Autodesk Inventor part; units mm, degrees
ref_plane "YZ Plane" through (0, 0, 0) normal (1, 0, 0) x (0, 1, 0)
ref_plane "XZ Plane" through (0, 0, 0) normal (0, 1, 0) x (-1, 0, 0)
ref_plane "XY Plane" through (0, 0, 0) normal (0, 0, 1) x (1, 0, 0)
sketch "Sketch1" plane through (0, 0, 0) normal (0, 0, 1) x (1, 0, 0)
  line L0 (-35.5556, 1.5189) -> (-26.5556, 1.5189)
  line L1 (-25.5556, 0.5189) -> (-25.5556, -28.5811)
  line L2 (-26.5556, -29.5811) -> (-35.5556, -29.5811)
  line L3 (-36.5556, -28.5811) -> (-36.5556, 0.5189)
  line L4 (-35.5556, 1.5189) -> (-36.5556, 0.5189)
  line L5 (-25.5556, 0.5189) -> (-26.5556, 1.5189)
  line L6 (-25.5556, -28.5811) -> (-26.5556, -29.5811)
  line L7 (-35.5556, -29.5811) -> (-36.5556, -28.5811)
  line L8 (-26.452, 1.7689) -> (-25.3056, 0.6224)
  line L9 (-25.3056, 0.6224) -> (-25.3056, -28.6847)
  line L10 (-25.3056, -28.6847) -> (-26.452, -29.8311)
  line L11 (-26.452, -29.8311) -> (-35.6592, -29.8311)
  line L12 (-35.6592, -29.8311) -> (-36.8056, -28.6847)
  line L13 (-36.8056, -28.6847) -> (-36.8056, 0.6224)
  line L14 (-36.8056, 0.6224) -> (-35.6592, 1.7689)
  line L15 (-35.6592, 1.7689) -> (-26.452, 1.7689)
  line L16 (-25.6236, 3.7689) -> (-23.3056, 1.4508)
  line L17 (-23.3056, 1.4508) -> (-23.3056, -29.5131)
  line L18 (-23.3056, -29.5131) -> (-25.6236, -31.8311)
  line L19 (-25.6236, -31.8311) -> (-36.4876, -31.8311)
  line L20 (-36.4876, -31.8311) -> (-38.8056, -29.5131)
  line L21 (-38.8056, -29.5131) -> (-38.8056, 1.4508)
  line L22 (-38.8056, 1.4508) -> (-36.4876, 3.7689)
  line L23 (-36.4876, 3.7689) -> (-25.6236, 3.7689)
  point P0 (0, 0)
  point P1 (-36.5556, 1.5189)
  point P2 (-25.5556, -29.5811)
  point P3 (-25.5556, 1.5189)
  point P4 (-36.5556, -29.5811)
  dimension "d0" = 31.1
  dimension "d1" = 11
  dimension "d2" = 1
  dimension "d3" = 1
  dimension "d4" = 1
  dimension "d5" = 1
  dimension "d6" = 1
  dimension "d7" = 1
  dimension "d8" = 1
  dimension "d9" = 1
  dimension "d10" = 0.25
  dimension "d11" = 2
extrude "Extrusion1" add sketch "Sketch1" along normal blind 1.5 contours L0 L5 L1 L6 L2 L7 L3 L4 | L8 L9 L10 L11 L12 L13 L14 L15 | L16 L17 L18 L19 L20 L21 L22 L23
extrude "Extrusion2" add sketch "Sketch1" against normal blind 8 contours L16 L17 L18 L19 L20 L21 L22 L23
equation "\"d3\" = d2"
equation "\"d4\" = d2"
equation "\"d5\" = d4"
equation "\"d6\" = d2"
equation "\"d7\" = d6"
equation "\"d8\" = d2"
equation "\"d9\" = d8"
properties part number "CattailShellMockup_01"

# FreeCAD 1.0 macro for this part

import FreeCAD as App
import Part
import Sketcher
from FreeCAD import Vector

doc = App.newDocument("Part")
body = doc.addObject("PartDesign::Body", "Body")

# Sketch on XY plane
sketch1 = body.newObject("Sketcher::SketchObject", "Sketch")
sketch1.AttachmentSupport = (doc.getObject("XY_Plane"), [""])
sketch1.MapMode = "FlatFace"
sketch1.addGeometry(Part.LineSegment(Vector(-23.3, 1.5, 0), Vector(-25.6, 3.8, 0)), False)
sketch1.addGeometry(Part.LineSegment(Vector(-25.6, 3.8, 0), Vector(-36.5, 3.8, 0)), False)
sketch1.addGeometry(Part.LineSegment(Vector(-36.5, 3.8, 0), Vector(-38.8, 1.5, 0)), False)
sketch1.addGeometry(Part.LineSegment(Vector(-38.8, 1.5, 0), Vector(-38.8, -29.5, 0)), False)
sketch1.addGeometry(Part.LineSegment(Vector(-38.8, -29.5, 0), Vector(-36.5, -31.8, 0)), False)
sketch1.addGeometry(Part.LineSegment(Vector(-36.5, -31.8, 0), Vector(-25.6, -31.8, 0)), False)
sketch1.addGeometry(Part.LineSegment(Vector(-25.6, -31.8, 0), Vector(-23.3, -29.5, 0)), False)
sketch1.addGeometry(Part.LineSegment(Vector(-23.3, -29.5, 0), Vector(-23.3, 1.5, 0)), False)
sketch1.addConstraint(Sketcher.Constraint("Coincident", 0, 2, 1, 1))
sketch1.addConstraint(Sketcher.Constraint("Coincident", 1, 2, 2, 1))
sketch1.addConstraint(Sketcher.Constraint("Coincident", 2, 2, 3, 1))
sketch1.addConstraint(Sketcher.Constraint("Coincident", 3, 2, 4, 1))
sketch1.addConstraint(Sketcher.Constraint("Coincident", 4, 2, 5, 1))
sketch1.addConstraint(Sketcher.Constraint("Coincident", 5, 2, 6, 1))
sketch1.addConstraint(Sketcher.Constraint("Coincident", 6, 2, 7, 1))
sketch1.addConstraint(Sketcher.Constraint("Coincident", 7, 2, 0, 1))
sketch1.addConstraint(Sketcher.Constraint("Horizontal", 1))
sketch1.addConstraint(Sketcher.Constraint("Vertical", 3))
sketch1.addConstraint(Sketcher.Constraint("Horizontal", 5))
sketch1.addConstraint(Sketcher.Constraint("Vertical", 7))
sketch1.addConstraint(Sketcher.Constraint("Perpendicular", 0, 2))
sketch1.addConstraint(Sketcher.Constraint("Perpendicular", 2, 4))
sketch1.addConstraint(Sketcher.Constraint("Perpendicular", 4, 6))
sketch1.addConstraint(Sketcher.Constraint("Horizontal", 3, 2, 6, 2))
sketch1.addConstraint(Sketcher.Constraint("Horizontal", 2, 2, 7, 2))
sketch1.addConstraint(Sketcher.Constraint("Vertical", 1, 2, 4, 2))
sketch1.addConstraint(Sketcher.Constraint("Vertical", 0, 2, 5, 2))
sketch1.addConstraint(Sketcher.Constraint("DistanceY", 4, 2, 1, 2, 35.6))
sketch1.addConstraint(Sketcher.Constraint("DistanceX", 3, 2, 6, 2, 15.5))
sketch1.addConstraint(Sketcher.Constraint("DistanceX", 1, 2, 1, 1, 10.864))
sketch1.addConstraint(Sketcher.Constraint("DistanceY", -1, 1, 0, 2, 3.769))
sketch1.addConstraint(Sketcher.Constraint("DistanceX", 0, 2, -1, 1, 25.6236))
pad1 = body.newObject("PartDesign::Pad", "Pad")
pad1.Profile = sketch1
pad1.Length = 1.5

# Sketch on XY plane
sketch2 = body.newObject("Sketcher::SketchObject", "Sketch001")
sketch2.AttachmentSupport = (doc.getObject("XY_Plane"), [""])
sketch2.MapMode = "FlatFace"
sketch2.addGeometry(Part.LineSegment(Vector(-23.3, 1.5, 0), Vector(-25.6, 3.8, 0)), False)
sketch2.addGeometry(Part.LineSegment(Vector(-25.6, 3.8, 0), Vector(-36.5, 3.8, 0)), False)
sketch2.addGeometry(Part.LineSegment(Vector(-36.5, 3.8, 0), Vector(-38.8, 1.5, 0)), False)
sketch2.addGeometry(Part.LineSegment(Vector(-38.8, 1.5, 0), Vector(-38.8, -29.5, 0)), False)
sketch2.addGeometry(Part.LineSegment(Vector(-38.8, -29.5, 0), Vector(-36.5, -31.8, 0)), False)
sketch2.addGeometry(Part.LineSegment(Vector(-36.5, -31.8, 0), Vector(-25.6, -31.8, 0)), False)
sketch2.addGeometry(Part.LineSegment(Vector(-25.6, -31.8, 0), Vector(-23.3, -29.5, 0)), False)
sketch2.addGeometry(Part.LineSegment(Vector(-23.3, -29.5, 0), Vector(-23.3, 1.5, 0)), False)
sketch2.addGeometry(Part.LineSegment(Vector(-35.7, 1.8, 0), Vector(-26.5, 1.8, 0)), False)
sketch2.addGeometry(Part.LineSegment(Vector(-26.5, 1.8, 0), Vector(-25.3, 0.6, 0)), False)
sketch2.addGeometry(Part.LineSegment(Vector(-25.3, 0.6, 0), Vector(-25.3, -28.7, 0)), False)
sketch2.addGeometry(Part.LineSegment(Vector(-25.3, -28.7, 0), Vector(-26.5, -29.8, 0)), False)
sketch2.addGeometry(Part.LineSegment(Vector(-26.5, -29.8, 0), Vector(-35.7, -29.8, 0)), False)
sketch2.addGeometry(Part.LineSegment(Vector(-35.7, -29.8, 0), Vector(-36.8, -28.7, 0)), False)
sketch2.addGeometry(Part.LineSegment(Vector(-36.8, -28.7, 0), Vector(-36.8, 0.6, 0)), False)
sketch2.addGeometry(Part.LineSegment(Vector(-36.8, 0.6, 0), Vector(-35.7, 1.8, 0)), False)
sketch2.addConstraint(Sketcher.Constraint("Coincident", 0, 2, 1, 1))
sketch2.addConstraint(Sketcher.Constraint("Coincident", 1, 2, 2, 1))
sketch2.addConstraint(Sketcher.Constraint("Coincident", 2, 2, 3, 1))
sketch2.addConstraint(Sketcher.Constraint("Coincident", 3, 2, 4, 1))
sketch2.addConstraint(Sketcher.Constraint("Coincident", 4, 2, 5, 1))
sketch2.addConstraint(Sketcher.Constraint("Coincident", 5, 2, 6, 1))
sketch2.addConstraint(Sketcher.Constraint("Coincident", 6, 2, 7, 1))
sketch2.addConstraint(Sketcher.Constraint("Coincident", 7, 2, 0, 1))
sketch2.addConstraint(Sketcher.Constraint("Coincident", 8, 2, 9, 1))
sketch2.addConstraint(Sketcher.Constraint("Coincident", 9, 2, 10, 1))
sketch2.addConstraint(Sketcher.Constraint("Coincident", 10, 2, 11, 1))
sketch2.addConstraint(Sketcher.Constraint("Coincident", 11, 2, 12, 1))
sketch2.addConstraint(Sketcher.Constraint("Coincident", 12, 2, 13, 1))
sketch2.addConstraint(Sketcher.Constraint("Coincident", 13, 2, 14, 1))
sketch2.addConstraint(Sketcher.Constraint("Coincident", 14, 2, 15, 1))
sketch2.addConstraint(Sketcher.Constraint("Coincident", 15, 2, 8, 1))
sketch2.addConstraint(Sketcher.Constraint("Horizontal", 1))
sketch2.addConstraint(Sketcher.Constraint("Vertical", 3))
sketch2.addConstraint(Sketcher.Constraint("Horizontal", 5))
sketch2.addConstraint(Sketcher.Constraint("Vertical", 7))
sketch2.addConstraint(Sketcher.Constraint("Horizontal", 8))
sketch2.addConstraint(Sketcher.Constraint("Vertical", 10))
sketch2.addConstraint(Sketcher.Constraint("Horizontal", 12))
sketch2.addConstraint(Sketcher.Constraint("Vertical", 14))
sketch2.addConstraint(Sketcher.Constraint("Perpendicular", 0, 2))
sketch2.addConstraint(Sketcher.Constraint("Perpendicular", 2, 4))
sketch2.addConstraint(Sketcher.Constraint("Perpendicular", 4, 6))
sketch2.addConstraint(Sketcher.Constraint("Perpendicular", 6, 9))
sketch2.addConstraint(Sketcher.Constraint("Perpendicular", 9, 11))
sketch2.addConstraint(Sketcher.Constraint("Perpendicular", 11, 13))
sketch2.addConstraint(Sketcher.Constraint("Perpendicular", 13, 15))
sketch2.addConstraint(Sketcher.Constraint("Horizontal", 3, 2, 6, 2))
sketch2.addConstraint(Sketcher.Constraint("Horizontal", 2, 2, 7, 2))
sketch2.addConstraint(Sketcher.Constraint("Horizontal", 10, 2, 13, 2))
sketch2.addConstraint(Sketcher.Constraint("Horizontal", 9, 2, 14, 2))
sketch2.addConstraint(Sketcher.Constraint("Vertical", 1, 2, 4, 2))
sketch2.addConstraint(Sketcher.Constraint("Vertical", 0, 2, 5, 2))
sketch2.addConstraint(Sketcher.Constraint("Vertical", 8, 2, 11, 2))
sketch2.addConstraint(Sketcher.Constraint("DistanceY", 8, 2, 0, 2, 2.0))
sketch2.addConstraint(Sketcher.Constraint("DistanceX", 9, 2, 7, 2, 2.0))
sketch2.addConstraint(Sketcher.Constraint("DistanceY", 5, 2, 11, 2, 2.0))
sketch2.addConstraint(Sketcher.Constraint("DistanceX", 3, 2, 13, 2, 2.0))
sketch2.addConstraint(Sketcher.Constraint("DistanceY", 4, 2, 1, 2, 35.6))
sketch2.addConstraint(Sketcher.Constraint("DistanceX", 3, 2, 6, 2, 15.5))
sketch2.addConstraint(Sketcher.Constraint("DistanceX", 1, 2, 1, 1, 10.864))
sketch2.addConstraint(Sketcher.Constraint("DistanceY", 10, 2, 10, 1, 29.307))
sketch2.addConstraint(Sketcher.Constraint("DistanceY", -1, 1, 0, 2, 3.769))
sketch2.addConstraint(Sketcher.Constraint("DistanceX", 8, 2, -1, 1, 26.452))
pad2 = body.newObject("PartDesign::Pad", "Pad001")
pad2.Profile = sketch2
pad2.Length = 8
pad2.Reversed = True

doc.recompute()
